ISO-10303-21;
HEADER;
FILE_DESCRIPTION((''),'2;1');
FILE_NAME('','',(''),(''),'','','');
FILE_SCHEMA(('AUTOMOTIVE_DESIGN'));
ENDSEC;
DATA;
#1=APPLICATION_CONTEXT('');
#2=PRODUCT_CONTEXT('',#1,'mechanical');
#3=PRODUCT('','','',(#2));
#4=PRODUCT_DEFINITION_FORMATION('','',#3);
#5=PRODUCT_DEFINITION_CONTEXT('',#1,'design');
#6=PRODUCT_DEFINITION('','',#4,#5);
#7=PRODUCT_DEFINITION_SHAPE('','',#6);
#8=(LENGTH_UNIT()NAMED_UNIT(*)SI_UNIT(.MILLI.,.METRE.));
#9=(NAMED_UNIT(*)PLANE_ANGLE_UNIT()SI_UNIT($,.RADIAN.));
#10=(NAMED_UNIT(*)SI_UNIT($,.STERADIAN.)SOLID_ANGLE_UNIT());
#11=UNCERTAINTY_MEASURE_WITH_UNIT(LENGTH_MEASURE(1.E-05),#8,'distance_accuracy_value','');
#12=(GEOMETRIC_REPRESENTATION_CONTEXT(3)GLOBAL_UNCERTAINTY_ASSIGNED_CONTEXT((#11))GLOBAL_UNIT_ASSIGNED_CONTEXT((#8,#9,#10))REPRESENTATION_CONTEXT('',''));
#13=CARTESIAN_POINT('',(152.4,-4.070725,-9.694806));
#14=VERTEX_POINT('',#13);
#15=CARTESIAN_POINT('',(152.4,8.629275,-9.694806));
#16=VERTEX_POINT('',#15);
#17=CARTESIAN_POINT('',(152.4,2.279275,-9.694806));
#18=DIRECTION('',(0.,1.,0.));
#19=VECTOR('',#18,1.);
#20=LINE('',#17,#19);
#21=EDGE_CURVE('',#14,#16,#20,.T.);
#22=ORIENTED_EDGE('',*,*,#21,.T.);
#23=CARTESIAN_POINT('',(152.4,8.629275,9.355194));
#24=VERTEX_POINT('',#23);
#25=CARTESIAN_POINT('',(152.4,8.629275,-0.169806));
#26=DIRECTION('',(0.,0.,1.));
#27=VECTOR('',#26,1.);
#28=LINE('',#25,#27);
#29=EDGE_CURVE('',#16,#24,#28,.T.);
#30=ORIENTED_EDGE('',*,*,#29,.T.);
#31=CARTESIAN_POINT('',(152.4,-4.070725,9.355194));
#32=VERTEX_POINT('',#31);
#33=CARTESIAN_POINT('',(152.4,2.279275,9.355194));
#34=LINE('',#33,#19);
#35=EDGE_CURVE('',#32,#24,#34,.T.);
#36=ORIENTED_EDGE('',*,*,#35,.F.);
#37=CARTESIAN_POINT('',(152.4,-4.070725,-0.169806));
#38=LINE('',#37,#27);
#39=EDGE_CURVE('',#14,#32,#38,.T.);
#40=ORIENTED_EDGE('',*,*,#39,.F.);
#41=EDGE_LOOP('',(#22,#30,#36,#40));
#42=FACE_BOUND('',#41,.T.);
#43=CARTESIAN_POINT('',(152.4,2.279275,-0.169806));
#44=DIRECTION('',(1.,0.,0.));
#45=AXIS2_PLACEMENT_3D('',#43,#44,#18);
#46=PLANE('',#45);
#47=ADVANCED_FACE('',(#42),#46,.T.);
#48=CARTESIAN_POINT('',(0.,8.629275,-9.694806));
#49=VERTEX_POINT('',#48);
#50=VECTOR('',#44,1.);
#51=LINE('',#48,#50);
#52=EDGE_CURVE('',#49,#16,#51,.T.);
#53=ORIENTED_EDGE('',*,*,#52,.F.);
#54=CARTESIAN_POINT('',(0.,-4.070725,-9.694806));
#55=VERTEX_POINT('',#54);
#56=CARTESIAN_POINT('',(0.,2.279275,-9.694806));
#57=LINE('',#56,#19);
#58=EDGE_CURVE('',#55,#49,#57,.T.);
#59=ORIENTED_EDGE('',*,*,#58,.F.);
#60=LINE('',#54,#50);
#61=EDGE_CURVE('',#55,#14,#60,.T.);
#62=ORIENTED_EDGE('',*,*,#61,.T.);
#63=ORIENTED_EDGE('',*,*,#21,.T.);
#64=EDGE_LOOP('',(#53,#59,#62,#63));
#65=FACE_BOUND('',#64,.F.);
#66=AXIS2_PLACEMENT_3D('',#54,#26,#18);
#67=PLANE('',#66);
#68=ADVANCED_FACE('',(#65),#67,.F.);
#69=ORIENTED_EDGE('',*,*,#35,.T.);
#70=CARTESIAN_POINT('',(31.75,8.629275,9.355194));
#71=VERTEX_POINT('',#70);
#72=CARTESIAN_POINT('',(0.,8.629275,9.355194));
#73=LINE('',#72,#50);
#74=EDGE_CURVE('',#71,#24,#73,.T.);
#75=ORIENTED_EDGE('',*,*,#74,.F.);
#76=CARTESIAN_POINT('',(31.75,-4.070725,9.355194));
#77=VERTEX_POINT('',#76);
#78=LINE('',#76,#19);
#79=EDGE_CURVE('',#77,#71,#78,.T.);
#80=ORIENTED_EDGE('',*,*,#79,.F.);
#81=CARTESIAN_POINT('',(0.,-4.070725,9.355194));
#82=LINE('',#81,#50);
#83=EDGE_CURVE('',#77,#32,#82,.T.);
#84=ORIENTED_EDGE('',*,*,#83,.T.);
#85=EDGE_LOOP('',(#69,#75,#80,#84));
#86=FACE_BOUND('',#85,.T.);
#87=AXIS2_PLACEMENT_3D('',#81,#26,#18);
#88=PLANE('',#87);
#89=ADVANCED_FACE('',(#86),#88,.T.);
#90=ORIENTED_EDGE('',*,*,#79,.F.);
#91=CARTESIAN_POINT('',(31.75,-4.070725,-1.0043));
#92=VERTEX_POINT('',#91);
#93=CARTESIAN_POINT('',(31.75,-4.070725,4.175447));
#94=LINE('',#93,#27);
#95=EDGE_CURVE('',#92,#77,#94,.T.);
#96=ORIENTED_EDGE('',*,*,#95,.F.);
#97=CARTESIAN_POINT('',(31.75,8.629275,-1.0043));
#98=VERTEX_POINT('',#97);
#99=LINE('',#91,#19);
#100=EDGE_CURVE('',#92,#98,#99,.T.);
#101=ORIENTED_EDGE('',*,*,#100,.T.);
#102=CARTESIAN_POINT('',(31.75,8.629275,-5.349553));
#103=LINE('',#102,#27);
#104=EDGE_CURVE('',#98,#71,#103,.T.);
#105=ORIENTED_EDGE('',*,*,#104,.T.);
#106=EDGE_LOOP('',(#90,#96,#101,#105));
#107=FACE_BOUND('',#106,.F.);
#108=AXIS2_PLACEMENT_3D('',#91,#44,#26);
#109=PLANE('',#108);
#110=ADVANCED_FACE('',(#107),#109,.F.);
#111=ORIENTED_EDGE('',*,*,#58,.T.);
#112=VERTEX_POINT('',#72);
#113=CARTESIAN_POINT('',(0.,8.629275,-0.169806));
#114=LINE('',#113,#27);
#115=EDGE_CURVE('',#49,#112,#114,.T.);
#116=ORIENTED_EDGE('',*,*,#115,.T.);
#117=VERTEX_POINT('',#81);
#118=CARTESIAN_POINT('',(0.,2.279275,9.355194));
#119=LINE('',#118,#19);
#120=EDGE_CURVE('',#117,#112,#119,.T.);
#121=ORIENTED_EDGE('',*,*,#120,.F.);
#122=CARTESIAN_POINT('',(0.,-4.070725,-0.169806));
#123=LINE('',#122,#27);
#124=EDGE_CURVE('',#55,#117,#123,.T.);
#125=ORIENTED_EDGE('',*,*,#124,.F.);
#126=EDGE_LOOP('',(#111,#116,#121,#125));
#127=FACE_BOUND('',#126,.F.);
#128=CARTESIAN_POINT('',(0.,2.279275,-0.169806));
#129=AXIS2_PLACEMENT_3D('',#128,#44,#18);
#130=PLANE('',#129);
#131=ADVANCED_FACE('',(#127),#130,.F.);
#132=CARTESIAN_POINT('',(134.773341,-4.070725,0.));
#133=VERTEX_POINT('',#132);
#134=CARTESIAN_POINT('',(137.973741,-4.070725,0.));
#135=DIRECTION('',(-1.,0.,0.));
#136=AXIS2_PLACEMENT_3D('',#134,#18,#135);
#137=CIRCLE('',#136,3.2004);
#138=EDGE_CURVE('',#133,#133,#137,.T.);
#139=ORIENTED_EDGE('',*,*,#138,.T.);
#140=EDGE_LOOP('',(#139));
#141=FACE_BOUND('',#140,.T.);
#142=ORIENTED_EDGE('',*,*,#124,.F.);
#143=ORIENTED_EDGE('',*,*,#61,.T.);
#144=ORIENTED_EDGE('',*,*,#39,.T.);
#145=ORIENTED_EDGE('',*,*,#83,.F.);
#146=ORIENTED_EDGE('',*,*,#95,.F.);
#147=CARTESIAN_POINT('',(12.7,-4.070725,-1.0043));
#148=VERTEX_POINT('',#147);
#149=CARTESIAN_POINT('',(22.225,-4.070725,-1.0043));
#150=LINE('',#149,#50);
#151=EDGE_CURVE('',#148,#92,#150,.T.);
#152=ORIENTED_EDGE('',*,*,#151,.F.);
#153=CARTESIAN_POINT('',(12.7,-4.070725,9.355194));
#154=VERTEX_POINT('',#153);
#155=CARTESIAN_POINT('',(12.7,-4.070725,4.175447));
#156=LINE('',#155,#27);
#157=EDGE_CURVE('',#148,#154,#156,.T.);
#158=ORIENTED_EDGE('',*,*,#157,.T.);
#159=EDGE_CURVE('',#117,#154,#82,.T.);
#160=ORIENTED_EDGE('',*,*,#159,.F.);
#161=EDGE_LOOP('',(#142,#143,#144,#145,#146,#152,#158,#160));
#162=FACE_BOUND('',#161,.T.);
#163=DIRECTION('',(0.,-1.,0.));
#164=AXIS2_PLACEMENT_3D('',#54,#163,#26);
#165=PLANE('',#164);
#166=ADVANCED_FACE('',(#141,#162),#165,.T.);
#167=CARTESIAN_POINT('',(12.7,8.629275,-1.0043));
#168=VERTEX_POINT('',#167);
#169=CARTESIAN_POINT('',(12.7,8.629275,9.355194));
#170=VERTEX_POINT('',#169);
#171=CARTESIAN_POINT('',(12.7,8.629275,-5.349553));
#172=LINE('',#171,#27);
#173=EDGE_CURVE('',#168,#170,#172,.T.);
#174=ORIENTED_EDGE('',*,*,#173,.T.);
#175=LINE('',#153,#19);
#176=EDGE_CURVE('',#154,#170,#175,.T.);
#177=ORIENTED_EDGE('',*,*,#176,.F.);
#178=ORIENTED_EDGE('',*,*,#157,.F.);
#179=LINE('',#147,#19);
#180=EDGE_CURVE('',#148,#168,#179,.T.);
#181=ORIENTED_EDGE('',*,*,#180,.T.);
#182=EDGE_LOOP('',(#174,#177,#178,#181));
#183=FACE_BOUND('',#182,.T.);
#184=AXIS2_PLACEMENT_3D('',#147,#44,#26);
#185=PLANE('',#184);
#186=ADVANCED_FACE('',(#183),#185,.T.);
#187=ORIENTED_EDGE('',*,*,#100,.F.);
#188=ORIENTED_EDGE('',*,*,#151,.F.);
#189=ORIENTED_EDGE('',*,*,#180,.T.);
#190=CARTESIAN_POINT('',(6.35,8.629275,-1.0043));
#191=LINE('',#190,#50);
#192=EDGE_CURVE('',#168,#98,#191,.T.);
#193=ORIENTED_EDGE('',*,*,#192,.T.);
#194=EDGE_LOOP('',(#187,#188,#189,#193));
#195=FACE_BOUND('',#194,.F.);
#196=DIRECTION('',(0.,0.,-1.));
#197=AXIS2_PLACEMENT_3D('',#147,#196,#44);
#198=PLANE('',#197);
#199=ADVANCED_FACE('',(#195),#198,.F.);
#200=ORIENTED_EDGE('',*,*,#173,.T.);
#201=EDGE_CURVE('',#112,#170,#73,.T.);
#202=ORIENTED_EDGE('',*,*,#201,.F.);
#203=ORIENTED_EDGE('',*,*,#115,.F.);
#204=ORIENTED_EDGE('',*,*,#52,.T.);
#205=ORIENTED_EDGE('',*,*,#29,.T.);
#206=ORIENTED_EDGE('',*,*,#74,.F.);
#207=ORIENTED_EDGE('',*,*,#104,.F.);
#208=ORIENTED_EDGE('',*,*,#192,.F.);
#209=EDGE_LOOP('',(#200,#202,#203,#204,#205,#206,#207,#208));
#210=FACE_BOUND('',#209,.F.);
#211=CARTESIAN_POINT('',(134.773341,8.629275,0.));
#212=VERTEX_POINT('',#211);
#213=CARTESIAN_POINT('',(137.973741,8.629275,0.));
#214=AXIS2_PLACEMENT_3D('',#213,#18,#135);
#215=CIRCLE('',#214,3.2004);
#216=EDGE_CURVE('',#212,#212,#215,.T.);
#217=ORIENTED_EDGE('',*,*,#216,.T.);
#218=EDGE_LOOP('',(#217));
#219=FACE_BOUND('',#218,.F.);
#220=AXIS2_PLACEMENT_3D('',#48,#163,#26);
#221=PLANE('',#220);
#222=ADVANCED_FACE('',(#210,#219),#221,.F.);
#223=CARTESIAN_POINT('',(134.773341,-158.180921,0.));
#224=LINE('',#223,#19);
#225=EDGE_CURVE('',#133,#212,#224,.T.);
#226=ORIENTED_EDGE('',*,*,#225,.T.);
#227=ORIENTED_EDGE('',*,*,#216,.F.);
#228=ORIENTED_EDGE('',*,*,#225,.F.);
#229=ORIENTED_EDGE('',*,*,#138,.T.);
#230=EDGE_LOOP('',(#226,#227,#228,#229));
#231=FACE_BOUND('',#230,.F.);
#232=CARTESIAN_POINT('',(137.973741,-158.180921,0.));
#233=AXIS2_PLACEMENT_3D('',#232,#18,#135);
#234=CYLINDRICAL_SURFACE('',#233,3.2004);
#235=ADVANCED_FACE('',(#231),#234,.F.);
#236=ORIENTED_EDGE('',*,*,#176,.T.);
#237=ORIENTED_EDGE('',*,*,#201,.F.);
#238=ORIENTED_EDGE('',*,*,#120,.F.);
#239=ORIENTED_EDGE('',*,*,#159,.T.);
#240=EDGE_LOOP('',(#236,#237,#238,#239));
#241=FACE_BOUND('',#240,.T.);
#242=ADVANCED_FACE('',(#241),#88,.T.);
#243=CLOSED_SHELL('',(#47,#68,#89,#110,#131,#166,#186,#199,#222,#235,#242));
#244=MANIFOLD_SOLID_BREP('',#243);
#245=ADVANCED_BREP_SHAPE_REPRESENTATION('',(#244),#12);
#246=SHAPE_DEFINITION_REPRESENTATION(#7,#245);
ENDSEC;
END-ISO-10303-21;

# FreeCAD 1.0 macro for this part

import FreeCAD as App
import Part
import Sketcher
Q = App.Units.Quantity


def add_polygon(sketch, points):
    """Adds a closed chain of lines whose ends are joined by coincident constraints."""
    first, n = sketch.GeometryCount, len(points)
    for a, b in zip(points, points[1:] + points[:1]):
        sketch.addGeometry(Part.LineSegment(App.Vector(*a, 0), App.Vector(*b, 0)), False)
    for i in range(n):
        sketch.addConstraint(Sketcher.Constraint("Coincident", first + i, 2, first + (i + 1) % n, 1))

doc = App.newDocument("Part")
body = doc.addObject("PartDesign::Body", "Body")

# Sketch on YZ plane
sketch1 = body.newObject("Sketcher::SketchObject", "Sketch")
sketch1.AttachmentSupport = (doc.getObject("YZ_Plane"), [""])
sketch1.MapMode = "FlatFace"
add_polygon(sketch1, [(-4, 9), (-4, -10), (9, -10), (9, 9)])  # lines 0-3
sketch1.addConstraint(Sketcher.Constraint("Vertical", 0))
sketch1.addConstraint(Sketcher.Constraint("Horizontal", 1))
sketch1.addConstraint(Sketcher.Constraint("Vertical", 2))
sketch1.addConstraint(Sketcher.Constraint("Horizontal", 3))
sketch1.addConstraint(Sketcher.Constraint("DistanceX", 1, 1, 1, 2, Q("0.5 in")))
sketch1.addConstraint(Sketcher.Constraint("DistanceY", 0, 2, 0, 1, Q("0.75 in")))
sketch1.addConstraint(Sketcher.Constraint("DistanceX", 0, 2, -1, 1, Q("4.070725 mm")))
sketch1.addConstraint(Sketcher.Constraint("DistanceY", 0, 2, -1, 1, Q("9.694806 mm")))
pad1 = body.newObject("PartDesign::Pad", "Pad")
pad1.Profile = sketch1
pad1.Length = Q("6 in")

# Sketch on XZ plane
sketch2 = body.newObject("Sketcher::SketchObject", "Sketch001")
sketch2.AttachmentSupport = (doc.getObject("XZ_Plane"), [""])
sketch2.MapMode = "FlatFace"
sketch2.AttachmentOffset = App.Placement(App.Vector(0, 0, 4.070725), App.Rotation())
add_polygon(sketch2, [(13, 9), (13, -1), (32, -1), (32, 9)])  # lines 0-3
sketch2.addConstraint(Sketcher.Constraint("Vertical", 0))
sketch2.addConstraint(Sketcher.Constraint("Horizontal", 1))
sketch2.addConstraint(Sketcher.Constraint("Vertical", 2))
sketch2.addConstraint(Sketcher.Constraint("Horizontal", 3))
sketch2.addConstraint(Sketcher.Constraint("DistanceX", 1, 1, 1, 2, Q("0.75 in")))
sketch2.addConstraint(Sketcher.Constraint("DistanceX", -1, 1, 0, 2, Q("0.5 in")))
sketch2.addConstraint(Sketcher.Constraint("DistanceY", 0, 2, -1, 1, Q("1.0043 mm")))
sketch2.addConstraint(Sketcher.Constraint("DistanceY", 0, 2, 0, 1, Q("10.359494 mm")))
pocket1 = body.newObject("PartDesign::Pocket", "Pocket")
pocket1.Profile = sketch2
pocket1.Length = Q("1 in")

# Sketch on XZ plane
sketch3 = body.newObject("Sketcher::SketchObject", "Sketch002")
sketch3.AttachmentSupport = (doc.getObject("XZ_Plane"), [""])
sketch3.MapMode = "FlatFace"
sketch3.AttachmentOffset = App.Placement(App.Vector(0, 0, 4.070725), App.Rotation())
sketch3.addGeometry(Part.Circle(App.Vector(138, 0, 0), App.Vector(0, 0, 1), 3.2), False)
sketch3.addConstraint(Sketcher.Constraint("PointOnObject", 0, 3, -1))
sketch3.addConstraint(Sketcher.Constraint("Diameter", 0, Q("0.252 in")))
sketch3.addConstraint(Sketcher.Constraint("DistanceX", -1, 1, 0, 3, Q("137.973741 mm")))
doc.recompute()
hole = body.newObject("PartDesign::Hole", "Hole")
hole.Profile = sketch3
hole.ThreadType = "None"
hole.Diameter = Q("0.252 in")
hole.DepthType = "ThroughAll"

doc.recompute()
